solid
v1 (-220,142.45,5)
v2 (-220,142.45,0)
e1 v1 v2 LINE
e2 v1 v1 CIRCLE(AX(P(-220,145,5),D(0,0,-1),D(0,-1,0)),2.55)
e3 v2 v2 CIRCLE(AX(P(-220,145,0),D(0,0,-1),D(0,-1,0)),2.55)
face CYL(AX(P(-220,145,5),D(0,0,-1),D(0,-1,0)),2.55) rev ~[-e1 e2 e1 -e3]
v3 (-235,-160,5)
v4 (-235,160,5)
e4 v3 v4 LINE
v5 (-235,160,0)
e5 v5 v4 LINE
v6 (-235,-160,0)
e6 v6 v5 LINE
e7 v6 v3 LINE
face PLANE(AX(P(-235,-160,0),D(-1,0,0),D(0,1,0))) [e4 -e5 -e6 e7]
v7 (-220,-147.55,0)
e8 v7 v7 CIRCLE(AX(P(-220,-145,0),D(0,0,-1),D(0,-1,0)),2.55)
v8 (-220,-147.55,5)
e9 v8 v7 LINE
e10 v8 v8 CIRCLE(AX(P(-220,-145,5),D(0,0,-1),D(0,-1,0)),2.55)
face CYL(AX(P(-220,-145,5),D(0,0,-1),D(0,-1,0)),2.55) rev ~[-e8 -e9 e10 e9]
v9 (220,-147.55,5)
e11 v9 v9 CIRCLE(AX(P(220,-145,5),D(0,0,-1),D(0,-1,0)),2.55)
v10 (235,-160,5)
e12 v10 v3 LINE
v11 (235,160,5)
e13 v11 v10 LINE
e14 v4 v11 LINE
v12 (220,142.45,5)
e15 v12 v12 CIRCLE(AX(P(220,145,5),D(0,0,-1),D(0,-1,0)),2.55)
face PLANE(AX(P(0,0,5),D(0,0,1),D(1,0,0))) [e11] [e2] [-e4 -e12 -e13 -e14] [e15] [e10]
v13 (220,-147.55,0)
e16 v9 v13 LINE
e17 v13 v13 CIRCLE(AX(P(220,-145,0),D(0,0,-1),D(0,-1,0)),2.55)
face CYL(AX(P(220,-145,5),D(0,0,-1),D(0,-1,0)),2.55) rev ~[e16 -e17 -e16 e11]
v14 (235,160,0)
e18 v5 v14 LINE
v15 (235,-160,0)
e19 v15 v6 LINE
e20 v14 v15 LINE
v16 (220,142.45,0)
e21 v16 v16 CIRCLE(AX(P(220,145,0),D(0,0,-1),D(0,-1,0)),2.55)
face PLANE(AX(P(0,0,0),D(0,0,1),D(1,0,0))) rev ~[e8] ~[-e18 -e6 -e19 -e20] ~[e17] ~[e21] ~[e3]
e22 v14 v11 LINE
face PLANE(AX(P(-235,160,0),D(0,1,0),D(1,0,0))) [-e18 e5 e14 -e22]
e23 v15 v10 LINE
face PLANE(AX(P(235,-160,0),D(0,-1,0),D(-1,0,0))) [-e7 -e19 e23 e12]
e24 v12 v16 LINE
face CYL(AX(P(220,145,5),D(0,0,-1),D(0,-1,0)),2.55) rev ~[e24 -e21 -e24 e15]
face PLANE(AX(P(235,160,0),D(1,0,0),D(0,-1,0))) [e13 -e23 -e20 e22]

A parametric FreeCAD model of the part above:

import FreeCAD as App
import Part
import Sketcher
Q = App.Units.Quantity


def add_polygon(sketch, points):
    """Adds a closed chain of lines whose ends are joined by coincident constraints."""
    first, n = sketch.GeometryCount, len(points)
    for a, b in zip(points, points[1:] + points[:1]):
        sketch.addGeometry(Part.LineSegment(App.Vector(*a, 0), App.Vector(*b, 0)), False)
    for i in range(n):
        sketch.addConstraint(Sketcher.Constraint("Coincident", first + i, 2, first + (i + 1) % n, 1))

doc = App.newDocument("Part")
params = doc.addObject("Spreadsheet::Sheet", "Params")
for row, (alias, value) in enumerate([
    ("sketch1_width", "470 mm"),
    ("sketch1_height", "320 mm"),
    ("pad1_length", "5 mm"),
    ("sketch2_diameter", "5.1 mm"),
    ("hole_diameter", "5.1 mm"),
], start=1):
    params.set(f"A{row}", alias)
    params.set(f"B{row}", "=" + value)
    params.setAlias(f"B{row}", alias)

body = doc.addObject("PartDesign::Body", "Body")

# Sketch on XY plane
sketch1 = body.newObject("Sketcher::SketchObject", "Sketch")
sketch1.AttachmentSupport = (doc.getObject("XY_Plane"), [""])
sketch1.MapMode = "FlatFace"
add_polygon(sketch1, [(235, 160), (-235, 160), (-235, -160), (235, -160)])  # lines 0-3
sketch1.addConstraint([
    Sketcher.Constraint("Horizontal", 0),
    Sketcher.Constraint("Vertical", 1),
    Sketcher.Constraint("Horizontal", 2),
    Sketcher.Constraint("Vertical", 3),
    Sketcher.Constraint("Symmetric", 0, 2, 2, 2, -1, 1),
    Sketcher.Constraint("DistanceX", 0, 2, 0, 1, Q("470 mm")),
    Sketcher.Constraint("DistanceY", 1, 2, 1, 1, Q("320 mm")),
])
sketch1.setExpression("Constraints[9]", "Params.sketch1_width")
sketch1.setExpression("Constraints[10]", "Params.sketch1_height")
pad1 = body.newObject("PartDesign::Pad", "Pad")
pad1.Profile = sketch1
pad1.setExpression("Length", "Params.pad1_length")

# Sketch on XY plane
sketch2 = body.newObject("Sketcher::SketchObject", "Sketch001")
sketch2.AttachmentSupport = (doc.getObject("XY_Plane"), [""])
sketch2.MapMode = "FlatFace"
sketch2.AttachmentOffset = App.Placement(App.Vector(0, 0, 5), App.Rotation())
sketch2.addGeometry([
    Part.Circle(App.Vector(-220, 145, 0), App.Vector(0, 0, 1), 2.5),
    Part.Circle(App.Vector(-220, -145, 0), App.Vector(0, 0, 1), 2.5),
    Part.Circle(App.Vector(220, -145, 0), App.Vector(0, 0, 1), 2.5),
    Part.Circle(App.Vector(220, 145, 0), App.Vector(0, 0, 1), 2.5),
], False)
sketch2.addConstraint([
    Sketcher.Constraint("Equal", 0, 1),
    Sketcher.Constraint("Equal", 1, 2),
    Sketcher.Constraint("Equal", 2, 3),
    Sketcher.Constraint("Symmetric", 0, 3, 2, 3, -1, 1),
    Sketcher.Constraint("Symmetric", 1, 3, 3, 3, -1, 1),
    Sketcher.Constraint("Symmetric", 1, 3, 2, 3, -2),
    Sketcher.Constraint("Diameter", 0, Q("5.1 mm")),
    Sketcher.Constraint("DistanceX", 0, 3, -1, 1, Q("220 mm")),
    Sketcher.Constraint("DistanceY", -1, 1, 0, 3, Q("145 mm")),
])
sketch2.setExpression("Constraints[6]", "Params.sketch2_diameter")
doc.recompute()
hole = body.newObject("PartDesign::Hole", "Hole")
hole.Profile = sketch2
hole.ThreadType = "None"
hole.setExpression("Diameter", "Params.hole_diameter")
hole.DepthType = "ThroughAll"

doc.recompute()
